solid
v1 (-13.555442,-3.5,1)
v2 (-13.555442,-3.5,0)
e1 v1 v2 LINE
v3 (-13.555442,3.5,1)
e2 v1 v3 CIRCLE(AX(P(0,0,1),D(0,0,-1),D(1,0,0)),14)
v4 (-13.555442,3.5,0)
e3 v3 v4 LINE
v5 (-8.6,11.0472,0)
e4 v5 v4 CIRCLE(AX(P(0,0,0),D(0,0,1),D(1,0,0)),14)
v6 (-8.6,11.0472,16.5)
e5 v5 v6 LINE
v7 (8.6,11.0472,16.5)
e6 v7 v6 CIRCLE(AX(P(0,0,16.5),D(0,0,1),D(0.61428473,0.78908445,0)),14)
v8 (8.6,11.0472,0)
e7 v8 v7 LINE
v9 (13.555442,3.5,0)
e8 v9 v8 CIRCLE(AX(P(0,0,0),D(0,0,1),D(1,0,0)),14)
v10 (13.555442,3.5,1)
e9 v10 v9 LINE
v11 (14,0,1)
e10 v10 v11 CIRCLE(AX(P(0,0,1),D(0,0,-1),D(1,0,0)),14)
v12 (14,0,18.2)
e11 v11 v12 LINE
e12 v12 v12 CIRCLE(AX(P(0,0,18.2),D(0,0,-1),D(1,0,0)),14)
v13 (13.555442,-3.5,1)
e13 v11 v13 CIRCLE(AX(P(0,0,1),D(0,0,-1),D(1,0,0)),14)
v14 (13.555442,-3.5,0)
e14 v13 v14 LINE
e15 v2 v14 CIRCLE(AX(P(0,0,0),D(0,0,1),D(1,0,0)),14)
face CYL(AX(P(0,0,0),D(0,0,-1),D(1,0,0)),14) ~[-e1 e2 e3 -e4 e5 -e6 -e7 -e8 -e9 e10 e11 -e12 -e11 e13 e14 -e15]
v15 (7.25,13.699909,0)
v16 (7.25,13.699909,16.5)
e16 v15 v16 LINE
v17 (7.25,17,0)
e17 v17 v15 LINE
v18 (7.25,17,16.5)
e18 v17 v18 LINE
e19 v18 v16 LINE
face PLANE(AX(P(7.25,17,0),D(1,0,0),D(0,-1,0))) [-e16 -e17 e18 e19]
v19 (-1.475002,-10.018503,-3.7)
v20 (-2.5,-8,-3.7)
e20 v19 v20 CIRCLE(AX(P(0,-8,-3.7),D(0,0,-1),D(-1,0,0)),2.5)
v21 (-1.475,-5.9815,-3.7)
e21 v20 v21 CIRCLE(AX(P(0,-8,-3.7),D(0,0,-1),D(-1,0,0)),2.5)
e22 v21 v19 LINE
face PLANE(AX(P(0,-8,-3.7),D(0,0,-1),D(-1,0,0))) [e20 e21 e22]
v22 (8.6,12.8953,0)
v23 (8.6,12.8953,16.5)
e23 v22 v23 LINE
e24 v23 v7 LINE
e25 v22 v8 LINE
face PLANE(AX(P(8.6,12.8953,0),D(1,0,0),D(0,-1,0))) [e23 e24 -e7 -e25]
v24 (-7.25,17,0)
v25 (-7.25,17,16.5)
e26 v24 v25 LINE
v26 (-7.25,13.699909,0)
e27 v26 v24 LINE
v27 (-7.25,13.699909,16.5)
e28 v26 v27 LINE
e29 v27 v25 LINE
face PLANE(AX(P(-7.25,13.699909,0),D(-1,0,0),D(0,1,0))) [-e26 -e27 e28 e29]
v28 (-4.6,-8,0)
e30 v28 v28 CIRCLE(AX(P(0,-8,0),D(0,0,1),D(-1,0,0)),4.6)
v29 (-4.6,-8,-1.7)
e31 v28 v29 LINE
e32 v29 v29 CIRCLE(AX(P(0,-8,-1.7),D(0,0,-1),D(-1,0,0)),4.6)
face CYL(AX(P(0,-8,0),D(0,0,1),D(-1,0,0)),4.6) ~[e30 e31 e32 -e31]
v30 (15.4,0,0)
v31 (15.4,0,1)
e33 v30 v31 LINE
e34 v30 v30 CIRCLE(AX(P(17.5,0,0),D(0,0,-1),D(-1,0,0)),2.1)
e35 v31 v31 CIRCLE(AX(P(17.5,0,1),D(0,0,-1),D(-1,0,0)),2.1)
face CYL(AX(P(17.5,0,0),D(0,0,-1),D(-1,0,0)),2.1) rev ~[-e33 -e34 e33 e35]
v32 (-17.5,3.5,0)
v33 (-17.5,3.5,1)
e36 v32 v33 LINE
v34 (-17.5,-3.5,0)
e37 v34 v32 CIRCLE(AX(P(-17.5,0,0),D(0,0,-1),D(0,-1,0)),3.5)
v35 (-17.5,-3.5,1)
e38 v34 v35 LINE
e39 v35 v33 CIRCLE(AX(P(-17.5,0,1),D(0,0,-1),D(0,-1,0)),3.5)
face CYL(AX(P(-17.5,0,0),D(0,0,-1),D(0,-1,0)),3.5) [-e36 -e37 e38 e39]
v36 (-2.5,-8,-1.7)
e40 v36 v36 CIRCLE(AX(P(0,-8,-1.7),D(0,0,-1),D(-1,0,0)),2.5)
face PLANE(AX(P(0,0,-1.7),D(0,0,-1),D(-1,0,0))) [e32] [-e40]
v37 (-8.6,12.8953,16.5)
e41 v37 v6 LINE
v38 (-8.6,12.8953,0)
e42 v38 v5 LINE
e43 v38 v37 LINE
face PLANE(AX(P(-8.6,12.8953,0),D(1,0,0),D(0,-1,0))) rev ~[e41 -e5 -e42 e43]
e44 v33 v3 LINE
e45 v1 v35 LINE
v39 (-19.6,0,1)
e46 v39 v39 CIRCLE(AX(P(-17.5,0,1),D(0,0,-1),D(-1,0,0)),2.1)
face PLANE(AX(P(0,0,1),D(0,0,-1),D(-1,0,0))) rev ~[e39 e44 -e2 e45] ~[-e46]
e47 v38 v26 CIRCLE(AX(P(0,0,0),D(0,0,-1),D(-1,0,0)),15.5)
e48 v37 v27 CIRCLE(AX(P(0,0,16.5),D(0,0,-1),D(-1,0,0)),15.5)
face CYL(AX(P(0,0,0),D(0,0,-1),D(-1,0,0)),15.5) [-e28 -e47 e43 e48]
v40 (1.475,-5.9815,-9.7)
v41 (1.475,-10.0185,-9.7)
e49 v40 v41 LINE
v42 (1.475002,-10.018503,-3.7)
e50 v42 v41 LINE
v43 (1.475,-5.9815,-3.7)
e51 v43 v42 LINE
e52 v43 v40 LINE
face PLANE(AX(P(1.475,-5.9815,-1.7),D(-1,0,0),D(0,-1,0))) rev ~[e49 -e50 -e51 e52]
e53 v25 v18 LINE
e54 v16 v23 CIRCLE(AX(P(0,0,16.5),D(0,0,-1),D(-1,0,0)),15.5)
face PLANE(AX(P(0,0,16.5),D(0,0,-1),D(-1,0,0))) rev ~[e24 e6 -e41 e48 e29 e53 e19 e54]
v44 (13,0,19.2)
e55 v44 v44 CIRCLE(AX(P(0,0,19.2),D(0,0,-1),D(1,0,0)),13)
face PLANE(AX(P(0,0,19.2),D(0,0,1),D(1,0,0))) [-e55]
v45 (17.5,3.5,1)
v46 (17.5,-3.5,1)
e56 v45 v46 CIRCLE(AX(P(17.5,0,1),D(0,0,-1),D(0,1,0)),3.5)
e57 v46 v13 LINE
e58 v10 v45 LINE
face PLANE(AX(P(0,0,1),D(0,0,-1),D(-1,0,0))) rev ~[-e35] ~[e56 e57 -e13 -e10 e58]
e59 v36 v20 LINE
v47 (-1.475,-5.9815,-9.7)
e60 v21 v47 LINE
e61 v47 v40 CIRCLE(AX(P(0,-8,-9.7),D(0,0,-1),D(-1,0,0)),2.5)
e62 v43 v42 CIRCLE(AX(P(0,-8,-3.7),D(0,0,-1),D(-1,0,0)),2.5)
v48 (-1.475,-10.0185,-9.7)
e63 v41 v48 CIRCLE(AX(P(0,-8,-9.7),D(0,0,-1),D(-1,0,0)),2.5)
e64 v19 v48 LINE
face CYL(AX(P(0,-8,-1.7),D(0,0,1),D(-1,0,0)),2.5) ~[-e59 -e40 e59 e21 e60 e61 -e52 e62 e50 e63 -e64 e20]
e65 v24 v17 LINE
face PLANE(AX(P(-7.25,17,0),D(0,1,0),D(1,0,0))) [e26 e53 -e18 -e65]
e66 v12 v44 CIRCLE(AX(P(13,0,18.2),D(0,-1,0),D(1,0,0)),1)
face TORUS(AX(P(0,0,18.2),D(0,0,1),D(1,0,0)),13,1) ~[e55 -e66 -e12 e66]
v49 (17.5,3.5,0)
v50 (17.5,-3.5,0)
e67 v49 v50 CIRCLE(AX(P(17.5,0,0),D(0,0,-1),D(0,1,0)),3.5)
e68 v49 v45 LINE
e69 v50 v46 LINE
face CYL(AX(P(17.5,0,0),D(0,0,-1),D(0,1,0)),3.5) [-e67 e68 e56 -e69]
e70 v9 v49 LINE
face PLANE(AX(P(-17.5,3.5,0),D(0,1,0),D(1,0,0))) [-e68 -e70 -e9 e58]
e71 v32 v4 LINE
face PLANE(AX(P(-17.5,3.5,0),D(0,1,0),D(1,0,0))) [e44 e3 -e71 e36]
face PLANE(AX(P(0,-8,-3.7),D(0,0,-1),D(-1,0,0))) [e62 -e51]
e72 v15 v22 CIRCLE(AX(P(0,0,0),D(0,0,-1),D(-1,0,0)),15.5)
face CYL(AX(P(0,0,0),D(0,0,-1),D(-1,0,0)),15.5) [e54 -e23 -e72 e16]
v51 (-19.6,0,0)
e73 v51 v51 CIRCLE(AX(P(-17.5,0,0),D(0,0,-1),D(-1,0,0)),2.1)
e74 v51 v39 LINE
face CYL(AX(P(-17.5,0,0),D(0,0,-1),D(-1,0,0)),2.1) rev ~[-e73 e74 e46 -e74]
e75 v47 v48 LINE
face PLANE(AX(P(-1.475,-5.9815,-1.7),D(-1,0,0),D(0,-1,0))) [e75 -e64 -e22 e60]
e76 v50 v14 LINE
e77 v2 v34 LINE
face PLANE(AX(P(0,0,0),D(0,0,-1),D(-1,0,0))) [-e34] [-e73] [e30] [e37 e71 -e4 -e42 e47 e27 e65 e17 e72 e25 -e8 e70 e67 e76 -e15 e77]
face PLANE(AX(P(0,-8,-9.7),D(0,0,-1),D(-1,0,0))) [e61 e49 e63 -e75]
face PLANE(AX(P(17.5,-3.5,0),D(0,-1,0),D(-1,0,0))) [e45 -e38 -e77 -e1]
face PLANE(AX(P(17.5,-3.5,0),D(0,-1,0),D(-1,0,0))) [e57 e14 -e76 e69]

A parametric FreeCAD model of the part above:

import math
import FreeCAD as App
import Part
import Sketcher
from FreeCAD import Vector
Q = App.Units.Quantity


def edges_at(feature, points):
    """Names of the edges that pass closest to the given points."""
    edges = feature.Shape.Edges
    near = lambda p: min(range(len(edges)), key=lambda i: edges[i].distToShape(Part.Vertex(*p))[0])
    return sorted({f"Edge{near(p) + 1}" for p in points})

doc = App.newDocument("Part")
body = doc.addObject("PartDesign::Body", "Body")

sketch1 = doc.addObject("Sketcher::SketchObject", "Sketch")
body.addObject(sketch1)
sketch1.AttachmentSupport = (doc.XY_Plane, [""])
sketch1.MapMode = "FlatFace"
sketch1.addGeometry(Part.Circle(Vector(0, 0, 0), Vector(0, 0, 1), 14), False)
sketch1.addConstraint([
    Sketcher.Constraint("Coincident", 0, 3, -1, 1),
    Sketcher.Constraint("Diameter", 0, Q("28 mm")),
])
pad1 = doc.addObject("PartDesign::Pad", "Pad")
body.addObject(pad1)
pad1.Profile = sketch1
pad1.Length = 19.2
doc.recompute()

fillet = doc.addObject("PartDesign::Fillet", "Fillet")
body.addObject(fillet)
fillet.Base = (pad1, edges_at(pad1, [(-14, 0, 19.2)]))
fillet.Radius = 1

sketch2 = doc.addObject("Sketcher::SketchObject", "Sketch001")
body.addObject(sketch2)
sketch2.AttachmentSupport = (doc.XY_Plane, [""])
sketch2.MapMode = "FlatFace"
sketch2.addGeometry([
    Part.ArcOfCircle(Part.Circle(Vector(0, 0, 0), Vector(0, 0, 1), 14), math.radians(52.100034), math.radians(127.899966)),
    Part.LineSegment(Vector(-8.6, 11.0472, 0), Vector(-8.6, 12.8953, 0)),
    Part.ArcOfCircle(Part.Circle(Vector(0, 0, 0), Vector(0, 0, 1), 15.5), math.radians(117.88782), math.radians(123.699705)),
    Part.LineSegment(Vector(-7.25, 13.699909, 0), Vector(-7.25, 17, 0)),
    Part.LineSegment(Vector(-7.25, 17, 0), Vector(7.25, 17, 0)),
    Part.LineSegment(Vector(7.25, 17, 0), Vector(7.25, 13.699909, 0)),
    Part.ArcOfCircle(Part.Circle(Vector(0, 0, 0), Vector(0, 0, 1), 15.5), math.radians(56.300295), math.radians(62.11218)),
    Part.LineSegment(Vector(8.6, 12.8953, 0), Vector(8.6, 11.0472, 0)),
], False)
sketch2.addConstraint([
    Sketcher.Constraint("Coincident", 0, 2, 1, 1),
    Sketcher.Constraint("Coincident", 1, 2, 2, 2),
    Sketcher.Constraint("Coincident", 2, 1, 3, 1),
    Sketcher.Constraint("Coincident", 3, 2, 4, 1),
    Sketcher.Constraint("Coincident", 4, 2, 5, 1),
    Sketcher.Constraint("Coincident", 5, 2, 6, 2),
    Sketcher.Constraint("Coincident", 6, 1, 7, 1),
    Sketcher.Constraint("Coincident", 7, 2, 0, 1),
    Sketcher.Constraint("Vertical", 1),
    Sketcher.Constraint("Vertical", 3),
    Sketcher.Constraint("Horizontal", 4),
    Sketcher.Constraint("Vertical", 5),
    Sketcher.Constraint("Vertical", 7),
    Sketcher.Constraint("Coincident", 0, 3, -1, 1),
    Sketcher.Constraint("Coincident", 2, 3, -1, 1),
    Sketcher.Constraint("Coincident", 6, 3, -1, 1),
    Sketcher.Constraint("Equal", 2, 6),
    Sketcher.Constraint("Horizontal", 2, 1, 5, 2),
    Sketcher.Constraint("Horizontal", 1, 2, 6, 1),
    Sketcher.Constraint("Radius", 2, Q("15.5 mm")),
    Sketcher.Constraint("DistanceX", 4, 1, 4, 2, Q("14.5 mm")),
    Sketcher.Constraint("Radius", 0, Q("14 mm")),
    Sketcher.Constraint("DistanceX", 1, 2, 2, 1, Q("1.35 mm")),
    Sketcher.Constraint("DistanceY", 3, 1, 3, 2, Q("3.3 mm")),
])
pad2 = doc.addObject("PartDesign::Pad", "Pad001")
body.addObject(pad2)
pad2.Profile = sketch2
pad2.Length = 16.5

sketch3 = doc.addObject("Sketcher::SketchObject", "Sketch002")
body.addObject(sketch3)
sketch3.AttachmentSupport = (doc.XY_Plane, [""])
sketch3.MapMode = "FlatFace"
sketch3.addGeometry(Part.Circle(Vector(0, -8, 0), Vector(0, 0, 1), 4.6), False)
sketch3.addConstraint([
    Sketcher.Constraint("PointOnObject", 0, 3, -2),
    Sketcher.Constraint("Diameter", 0, Q("9.2 mm")),
    Sketcher.Constraint("DistanceY", 0, 3, -1, 1, Q("8 mm")),
])
pad3 = doc.addObject("PartDesign::Pad", "Pad002")
body.addObject(pad3)
pad3.Profile = sketch3
pad3.Length = 1.7
pad3.Reversed = True

sketch4 = doc.addObject("Sketcher::SketchObject", "Sketch003")
body.addObject(sketch4)
sketch4.AttachmentSupport = (doc.XY_Plane, [""])
sketch4.MapMode = "FlatFace"
sketch4.AttachmentOffset = App.Placement(Vector(0, 0, -1.7), App.Rotation())
sketch4.addGeometry([
    Part.LineSegment(Vector(-1.475, -10.0185, 0), Vector(-1.475, -5.9815, 0)),
    Part.ArcOfCircle(Part.Circle(Vector(0, -8, 0), Vector(0, 0, 1), 2.5), math.radians(53.842882), math.radians(126.157118)),
    Part.LineSegment(Vector(1.475, -5.9815, 0), Vector(1.475, -10.0185, 0)),
    Part.ArcOfCircle(Part.Circle(Vector(0, -8, 0), Vector(0, 0, 1), 2.5), math.radians(-126.157118), math.radians(-53.842882)),
], False)
sketch4.addConstraint([
    Sketcher.Constraint("Coincident", 0, 2, 1, 2),
    Sketcher.Constraint("Coincident", 1, 1, 2, 1),
    Sketcher.Constraint("Coincident", 2, 2, 3, 2),
    Sketcher.Constraint("Coincident", 3, 1, 0, 1),
    Sketcher.Constraint("Vertical", 0),
    Sketcher.Constraint("Vertical", 2),
    Sketcher.Constraint("Coincident", 3, 3, 1, 3),
    Sketcher.Constraint("Equal", 1, 3),
    Sketcher.Constraint("Symmetric", 0, 2, 1, 1, -2),
    Sketcher.Constraint("Radius", 1, Q("2.5 mm")),
    Sketcher.Constraint("DistanceX", 0, 2, 1, 1, Q("2.95 mm")),
    Sketcher.Constraint("DistanceY", 1, 3, -1, 1, Q("8 mm")),
])
pad4 = doc.addObject("PartDesign::Pad", "Pad003")
body.addObject(pad4)
pad4.Profile = sketch4
pad4.Length = 8
pad4.Reversed = True

sketch5 = doc.addObject("Sketcher::SketchObject", "Sketch004")
body.addObject(sketch5)
sketch5.AttachmentSupport = (doc.XY_Plane, [""])
sketch5.MapMode = "FlatFace"
sketch5.AttachmentOffset = App.Placement(Vector(0, 0, -1.7), App.Rotation())
sketch5.addGeometry(Part.Circle(Vector(0, -8, 0), Vector(0, 0, 1), 2.499993), False)
sketch5.addConstraint([
    Sketcher.Constraint("PointOnObject", 0, 3, -2),
    Sketcher.Constraint("Diameter", 0, Q("5 mm")),
    Sketcher.Constraint("DistanceY", 0, 3, -1, 1, Q("8 mm")),
])
pad5 = doc.addObject("PartDesign::Pad", "Pad004")
body.addObject(pad5)
pad5.Profile = sketch5
pad5.Length = 2
pad5.Reversed = True

sketch6 = doc.addObject("Sketcher::SketchObject", "Sketch005")
body.addObject(sketch6)
sketch6.AttachmentSupport = (doc.XY_Plane, [""])
sketch6.MapMode = "FlatFace"
sketch6.addGeometry([
    Part.ArcOfCircle(Part.Circle(Vector(17.5, 0, 0), Vector(0, 0, 1), 3.5), math.radians(-90), math.radians(90)),
    Part.LineSegment(Vector(17.5, -3.5, 0), Vector(-17.5, -3.5, 0)),
    Part.ArcOfCircle(Part.Circle(Vector(-17.5, 0, 0), Vector(0, 0, 1), 3.5), math.radians(90), math.radians(270)),
    Part.LineSegment(Vector(-17.5, 3.5, 0), Vector(17.5, 3.5, 0)),
    Part.Circle(Vector(17.5, 0, 0), Vector(0, 0, 1), 2.1),
    Part.Circle(Vector(-17.5, 0, 0), Vector(0, 0, 1), 2.1),
], False)
sketch6.addConstraint([
    Sketcher.Constraint("Tangent", 0, 1, 1, 1),
    Sketcher.Constraint("Tangent", 1, 2, 2, 2),
    Sketcher.Constraint("Tangent", 2, 1, 3, 1),
    Sketcher.Constraint("Tangent", 3, 2, 0, 2),
    Sketcher.Constraint("Horizontal", 1),
    Sketcher.Constraint("Horizontal", 3),
    Sketcher.Constraint("Coincident", 4, 3, 0, 3),
    Sketcher.Constraint("Coincident", 5, 3, 2, 3),
    Sketcher.Constraint("Equal", 4, 5),
    Sketcher.Constraint("Symmetric", 0, 3, 2, 3, -1, 1),
    Sketcher.Constraint("Diameter", 4, Q("4.2 mm")),
    Sketcher.Constraint("Radius", 0, Q("3.5 mm")),
    Sketcher.Constraint("DistanceX", 1, 2, 1, 1, Q("35 mm")),
])
pad6 = doc.addObject("PartDesign::Pad", "Pad005")
body.addObject(pad6)
pad6.Profile = sketch6
pad6.Length = 1

doc.recompute()
